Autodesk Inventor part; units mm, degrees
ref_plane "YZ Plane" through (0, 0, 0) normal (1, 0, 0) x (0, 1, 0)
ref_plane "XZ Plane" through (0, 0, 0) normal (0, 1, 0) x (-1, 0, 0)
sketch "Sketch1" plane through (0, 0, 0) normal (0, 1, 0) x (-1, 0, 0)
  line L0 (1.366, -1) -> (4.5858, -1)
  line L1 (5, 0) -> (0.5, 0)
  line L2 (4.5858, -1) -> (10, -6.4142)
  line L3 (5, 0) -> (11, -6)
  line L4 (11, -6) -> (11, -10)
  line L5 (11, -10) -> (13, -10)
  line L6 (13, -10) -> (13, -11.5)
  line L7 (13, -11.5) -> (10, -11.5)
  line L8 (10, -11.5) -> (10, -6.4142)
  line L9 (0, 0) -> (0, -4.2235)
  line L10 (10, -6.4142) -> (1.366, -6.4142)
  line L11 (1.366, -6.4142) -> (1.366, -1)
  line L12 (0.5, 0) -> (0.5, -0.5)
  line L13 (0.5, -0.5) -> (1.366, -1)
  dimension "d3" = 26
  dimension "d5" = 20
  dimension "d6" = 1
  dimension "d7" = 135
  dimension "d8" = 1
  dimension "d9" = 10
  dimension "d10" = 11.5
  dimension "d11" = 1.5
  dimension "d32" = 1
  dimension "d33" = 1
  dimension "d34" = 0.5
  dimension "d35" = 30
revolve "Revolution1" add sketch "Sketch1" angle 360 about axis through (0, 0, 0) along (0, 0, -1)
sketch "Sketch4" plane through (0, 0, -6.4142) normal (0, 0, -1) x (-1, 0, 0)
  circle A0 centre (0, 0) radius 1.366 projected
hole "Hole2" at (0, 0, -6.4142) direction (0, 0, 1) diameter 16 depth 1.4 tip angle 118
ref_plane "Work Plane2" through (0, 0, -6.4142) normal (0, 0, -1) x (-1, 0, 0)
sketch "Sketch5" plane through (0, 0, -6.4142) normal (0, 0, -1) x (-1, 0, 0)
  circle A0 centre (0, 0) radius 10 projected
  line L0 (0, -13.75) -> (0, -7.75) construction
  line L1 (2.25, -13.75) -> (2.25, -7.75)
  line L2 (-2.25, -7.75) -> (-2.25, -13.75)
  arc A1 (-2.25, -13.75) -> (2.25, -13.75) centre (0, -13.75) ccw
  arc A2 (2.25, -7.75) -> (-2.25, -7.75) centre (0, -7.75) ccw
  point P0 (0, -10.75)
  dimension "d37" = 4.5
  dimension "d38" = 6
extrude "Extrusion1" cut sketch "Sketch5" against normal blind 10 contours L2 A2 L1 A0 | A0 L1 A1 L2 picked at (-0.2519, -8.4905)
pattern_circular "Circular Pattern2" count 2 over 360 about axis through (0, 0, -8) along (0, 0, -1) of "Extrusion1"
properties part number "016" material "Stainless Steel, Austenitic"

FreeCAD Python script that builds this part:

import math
import FreeCAD as App
import Part
import Sketcher
from FreeCAD import Vector
Q = App.Units.Quantity


def add_polygon(sketch, points):
    """Adds a closed chain of lines whose ends are joined by coincident constraints."""
    first, n = sketch.GeometryCount, len(points)
    for a, b in zip(points, points[1:] + points[:1]):
        sketch.addGeometry(Part.LineSegment(App.Vector(*a, 0), App.Vector(*b, 0)), False)
    for i in range(n):
        sketch.addConstraint(Sketcher.Constraint("Coincident", first + i, 2, first + (i + 1) % n, 1))

doc = App.newDocument("Part")
body = doc.addObject("PartDesign::Body", "Body")

# Sketch on XZ plane
sketch1 = body.newObject("Sketcher::SketchObject", "Sketch")
sketch1.AttachmentSupport = (doc.getObject("XZ_Plane"), [""])
sketch1.MapMode = "FlatFace"
add_polygon(sketch1, [(-0.5, -0.5), (-1.4, -1), (-1.4, -6.4), (-10, -6.4), (-10, -11.5), (-13, -11.5), (-13, -10), (-11, -10), (-11, -6), (-5, 0), (-0.5, 0)])  # lines 0-10
sketch1.addConstraint(Sketcher.Constraint("Vertical", 1))
sketch1.addConstraint(Sketcher.Constraint("Horizontal", 2))
sketch1.addConstraint(Sketcher.Constraint("Vertical", 3))
sketch1.addConstraint(Sketcher.Constraint("Horizontal", 4))
sketch1.addConstraint(Sketcher.Constraint("Vertical", 5))
sketch1.addConstraint(Sketcher.Constraint("Horizontal", 6))
sketch1.addConstraint(Sketcher.Constraint("Vertical", 7))
sketch1.addConstraint(Sketcher.Constraint("Horizontal", 9))
sketch1.addConstraint(Sketcher.Constraint("Vertical", 10))
sketch1.addConstraint(Sketcher.Constraint("PointOnObject", 8, 2, -1))
sketch1.addConstraint(Sketcher.Constraint("Distance", 0, Q("1 mm")))
sketch1.addConstraint(Sketcher.Constraint("DistanceY", 5, 1, 5, 2, Q("1.5 mm")))
sketch1.addConstraint(Sketcher.Constraint("DistanceY", 10, 2, 10, 1, Q("0.5 mm")))
sketch1.addConstraint(Sketcher.Constraint("DistanceY", 0, 2, -1, 1, Q("1 mm")))
sketch1.addConstraint(Sketcher.Constraint("DistanceX", 2, 2, -1, 1, Q("10 mm")))
sketch1.addConstraint(Sketcher.Constraint("DistanceY", 5, 2, -1, 1, Q("10 mm")))
sketch1.addConstraint(Sketcher.Constraint("DistanceX", 6, 2, 3, 2, Q("1 mm")))
sketch1.addConstraint(Sketcher.Constraint("DistanceX", 9, 2, -1, 1, Q("0.5 mm")))
sketch1.addConstraint(Sketcher.Constraint("DistanceX", 4, 2, 4, 1, Q("3 mm")))
sketch1.addConstraint(Sketcher.Constraint("DistanceY", 7, 1, 7, 2, Q("4 mm")))
sketch1.addConstraint(Sketcher.Constraint("Angle", 8, Q("45 deg")))
sketch1.addConstraint(Sketcher.Constraint("DistanceY", 1, 2, 1, 1, Q("5.4142 mm")))
revolution = body.newObject("PartDesign::Revolution", "Revolution")
revolution.Profile = sketch1
revolution.ReferenceAxis = (sketch1, ["V_Axis"])
revolution.Angle = 360

# Sketch on XY plane
sketch2 = body.newObject("Sketcher::SketchObject", "Sketch001")
sketch2.AttachmentSupport = (doc.getObject("XY_Plane"), [""])
sketch2.MapMode = "FlatFace"
sketch2.AttachmentOffset = App.Placement(Vector(0, 0, -6.4142), App.Rotation())
sketch2.addGeometry(Part.Circle(Vector(0, 0, 0), Vector(0, 0, 1), 8), False)
sketch2.addConstraint(Sketcher.Constraint("Coincident", 0, 3, -1, 1))
sketch2.addConstraint(Sketcher.Constraint("Diameter", 0, Q("16 mm")))
doc.recompute()
hole = body.newObject("PartDesign::Hole", "Hole")
hole.Profile = sketch2
hole.ThreadType = "None"
hole.Diameter = 16
hole.DepthType = "Dimension"
hole.Depth = 1.4
hole.DrillPoint = "Angled"
hole.DrillPointAngle = 118
hole.Reversed = True

# Sketch on XY plane
sketch3 = body.newObject("Sketcher::SketchObject", "Sketch002")
sketch3.AttachmentSupport = (doc.getObject("XY_Plane"), [""])
sketch3.MapMode = "FlatFace"
sketch3.AttachmentOffset = App.Placement(Vector(0, 0, -6.4142), App.Rotation())
sketch3.addGeometry(Part.LineSegment(Vector(2.2, -7.8, 0), Vector(2.2, -13.8, 0)), False)
sketch3.addGeometry(Part.ArcOfCircle(Part.Circle(Vector(0, -13.8, 0), Vector(0, 0, 1), 2.2), math.radians(180), math.radians(360)), False)
sketch3.addGeometry(Part.LineSegment(Vector(-2.2, -13.8, 0), Vector(-2.2, -7.8, 0)), False)
sketch3.addGeometry(Part.ArcOfCircle(Part.Circle(Vector(0, -7.8, 0), Vector(0, 0, 1), 2.2), math.radians(0), math.radians(180)), False)
sketch3.addConstraint(Sketcher.Constraint("Tangent", 0, 2, 1, 2))
sketch3.addConstraint(Sketcher.Constraint("Tangent", 1, 1, 2, 1))
sketch3.addConstraint(Sketcher.Constraint("Tangent", 2, 2, 3, 2))
sketch3.addConstraint(Sketcher.Constraint("Tangent", 3, 1, 0, 1))
sketch3.addConstraint(Sketcher.Constraint("Vertical", 0))
sketch3.addConstraint(Sketcher.Constraint("Vertical", 2))
sketch3.addConstraint(Sketcher.Constraint("PointOnObject", 1, 3, -2))
sketch3.addConstraint(Sketcher.Constraint("DistanceY", 0, 2, 0, 1, Q("6 mm")))
sketch3.addConstraint(Sketcher.Constraint("Radius", 1, Q("2.25 mm")))
sketch3.addConstraint(Sketcher.Constraint("DistanceY", 1, 3, -1, 1, Q("13.75 mm")))
pocket1 = body.newObject("PartDesign::Pocket", "Pocket")
pocket1.Profile = sketch3
pocket1.Length = 10
pocket1.Reversed = True
doc.recompute()

polarpattern = body.newObject("PartDesign::PolarPattern", "PolarPattern")
polarpattern.Originals = [pocket1]
polarpattern.Axis = (doc.getObject("Z_Axis"), [""])
polarpattern.Angle = 360
polarpattern.Occurrences = 2
body.Tip = polarpattern

doc.recompute()
